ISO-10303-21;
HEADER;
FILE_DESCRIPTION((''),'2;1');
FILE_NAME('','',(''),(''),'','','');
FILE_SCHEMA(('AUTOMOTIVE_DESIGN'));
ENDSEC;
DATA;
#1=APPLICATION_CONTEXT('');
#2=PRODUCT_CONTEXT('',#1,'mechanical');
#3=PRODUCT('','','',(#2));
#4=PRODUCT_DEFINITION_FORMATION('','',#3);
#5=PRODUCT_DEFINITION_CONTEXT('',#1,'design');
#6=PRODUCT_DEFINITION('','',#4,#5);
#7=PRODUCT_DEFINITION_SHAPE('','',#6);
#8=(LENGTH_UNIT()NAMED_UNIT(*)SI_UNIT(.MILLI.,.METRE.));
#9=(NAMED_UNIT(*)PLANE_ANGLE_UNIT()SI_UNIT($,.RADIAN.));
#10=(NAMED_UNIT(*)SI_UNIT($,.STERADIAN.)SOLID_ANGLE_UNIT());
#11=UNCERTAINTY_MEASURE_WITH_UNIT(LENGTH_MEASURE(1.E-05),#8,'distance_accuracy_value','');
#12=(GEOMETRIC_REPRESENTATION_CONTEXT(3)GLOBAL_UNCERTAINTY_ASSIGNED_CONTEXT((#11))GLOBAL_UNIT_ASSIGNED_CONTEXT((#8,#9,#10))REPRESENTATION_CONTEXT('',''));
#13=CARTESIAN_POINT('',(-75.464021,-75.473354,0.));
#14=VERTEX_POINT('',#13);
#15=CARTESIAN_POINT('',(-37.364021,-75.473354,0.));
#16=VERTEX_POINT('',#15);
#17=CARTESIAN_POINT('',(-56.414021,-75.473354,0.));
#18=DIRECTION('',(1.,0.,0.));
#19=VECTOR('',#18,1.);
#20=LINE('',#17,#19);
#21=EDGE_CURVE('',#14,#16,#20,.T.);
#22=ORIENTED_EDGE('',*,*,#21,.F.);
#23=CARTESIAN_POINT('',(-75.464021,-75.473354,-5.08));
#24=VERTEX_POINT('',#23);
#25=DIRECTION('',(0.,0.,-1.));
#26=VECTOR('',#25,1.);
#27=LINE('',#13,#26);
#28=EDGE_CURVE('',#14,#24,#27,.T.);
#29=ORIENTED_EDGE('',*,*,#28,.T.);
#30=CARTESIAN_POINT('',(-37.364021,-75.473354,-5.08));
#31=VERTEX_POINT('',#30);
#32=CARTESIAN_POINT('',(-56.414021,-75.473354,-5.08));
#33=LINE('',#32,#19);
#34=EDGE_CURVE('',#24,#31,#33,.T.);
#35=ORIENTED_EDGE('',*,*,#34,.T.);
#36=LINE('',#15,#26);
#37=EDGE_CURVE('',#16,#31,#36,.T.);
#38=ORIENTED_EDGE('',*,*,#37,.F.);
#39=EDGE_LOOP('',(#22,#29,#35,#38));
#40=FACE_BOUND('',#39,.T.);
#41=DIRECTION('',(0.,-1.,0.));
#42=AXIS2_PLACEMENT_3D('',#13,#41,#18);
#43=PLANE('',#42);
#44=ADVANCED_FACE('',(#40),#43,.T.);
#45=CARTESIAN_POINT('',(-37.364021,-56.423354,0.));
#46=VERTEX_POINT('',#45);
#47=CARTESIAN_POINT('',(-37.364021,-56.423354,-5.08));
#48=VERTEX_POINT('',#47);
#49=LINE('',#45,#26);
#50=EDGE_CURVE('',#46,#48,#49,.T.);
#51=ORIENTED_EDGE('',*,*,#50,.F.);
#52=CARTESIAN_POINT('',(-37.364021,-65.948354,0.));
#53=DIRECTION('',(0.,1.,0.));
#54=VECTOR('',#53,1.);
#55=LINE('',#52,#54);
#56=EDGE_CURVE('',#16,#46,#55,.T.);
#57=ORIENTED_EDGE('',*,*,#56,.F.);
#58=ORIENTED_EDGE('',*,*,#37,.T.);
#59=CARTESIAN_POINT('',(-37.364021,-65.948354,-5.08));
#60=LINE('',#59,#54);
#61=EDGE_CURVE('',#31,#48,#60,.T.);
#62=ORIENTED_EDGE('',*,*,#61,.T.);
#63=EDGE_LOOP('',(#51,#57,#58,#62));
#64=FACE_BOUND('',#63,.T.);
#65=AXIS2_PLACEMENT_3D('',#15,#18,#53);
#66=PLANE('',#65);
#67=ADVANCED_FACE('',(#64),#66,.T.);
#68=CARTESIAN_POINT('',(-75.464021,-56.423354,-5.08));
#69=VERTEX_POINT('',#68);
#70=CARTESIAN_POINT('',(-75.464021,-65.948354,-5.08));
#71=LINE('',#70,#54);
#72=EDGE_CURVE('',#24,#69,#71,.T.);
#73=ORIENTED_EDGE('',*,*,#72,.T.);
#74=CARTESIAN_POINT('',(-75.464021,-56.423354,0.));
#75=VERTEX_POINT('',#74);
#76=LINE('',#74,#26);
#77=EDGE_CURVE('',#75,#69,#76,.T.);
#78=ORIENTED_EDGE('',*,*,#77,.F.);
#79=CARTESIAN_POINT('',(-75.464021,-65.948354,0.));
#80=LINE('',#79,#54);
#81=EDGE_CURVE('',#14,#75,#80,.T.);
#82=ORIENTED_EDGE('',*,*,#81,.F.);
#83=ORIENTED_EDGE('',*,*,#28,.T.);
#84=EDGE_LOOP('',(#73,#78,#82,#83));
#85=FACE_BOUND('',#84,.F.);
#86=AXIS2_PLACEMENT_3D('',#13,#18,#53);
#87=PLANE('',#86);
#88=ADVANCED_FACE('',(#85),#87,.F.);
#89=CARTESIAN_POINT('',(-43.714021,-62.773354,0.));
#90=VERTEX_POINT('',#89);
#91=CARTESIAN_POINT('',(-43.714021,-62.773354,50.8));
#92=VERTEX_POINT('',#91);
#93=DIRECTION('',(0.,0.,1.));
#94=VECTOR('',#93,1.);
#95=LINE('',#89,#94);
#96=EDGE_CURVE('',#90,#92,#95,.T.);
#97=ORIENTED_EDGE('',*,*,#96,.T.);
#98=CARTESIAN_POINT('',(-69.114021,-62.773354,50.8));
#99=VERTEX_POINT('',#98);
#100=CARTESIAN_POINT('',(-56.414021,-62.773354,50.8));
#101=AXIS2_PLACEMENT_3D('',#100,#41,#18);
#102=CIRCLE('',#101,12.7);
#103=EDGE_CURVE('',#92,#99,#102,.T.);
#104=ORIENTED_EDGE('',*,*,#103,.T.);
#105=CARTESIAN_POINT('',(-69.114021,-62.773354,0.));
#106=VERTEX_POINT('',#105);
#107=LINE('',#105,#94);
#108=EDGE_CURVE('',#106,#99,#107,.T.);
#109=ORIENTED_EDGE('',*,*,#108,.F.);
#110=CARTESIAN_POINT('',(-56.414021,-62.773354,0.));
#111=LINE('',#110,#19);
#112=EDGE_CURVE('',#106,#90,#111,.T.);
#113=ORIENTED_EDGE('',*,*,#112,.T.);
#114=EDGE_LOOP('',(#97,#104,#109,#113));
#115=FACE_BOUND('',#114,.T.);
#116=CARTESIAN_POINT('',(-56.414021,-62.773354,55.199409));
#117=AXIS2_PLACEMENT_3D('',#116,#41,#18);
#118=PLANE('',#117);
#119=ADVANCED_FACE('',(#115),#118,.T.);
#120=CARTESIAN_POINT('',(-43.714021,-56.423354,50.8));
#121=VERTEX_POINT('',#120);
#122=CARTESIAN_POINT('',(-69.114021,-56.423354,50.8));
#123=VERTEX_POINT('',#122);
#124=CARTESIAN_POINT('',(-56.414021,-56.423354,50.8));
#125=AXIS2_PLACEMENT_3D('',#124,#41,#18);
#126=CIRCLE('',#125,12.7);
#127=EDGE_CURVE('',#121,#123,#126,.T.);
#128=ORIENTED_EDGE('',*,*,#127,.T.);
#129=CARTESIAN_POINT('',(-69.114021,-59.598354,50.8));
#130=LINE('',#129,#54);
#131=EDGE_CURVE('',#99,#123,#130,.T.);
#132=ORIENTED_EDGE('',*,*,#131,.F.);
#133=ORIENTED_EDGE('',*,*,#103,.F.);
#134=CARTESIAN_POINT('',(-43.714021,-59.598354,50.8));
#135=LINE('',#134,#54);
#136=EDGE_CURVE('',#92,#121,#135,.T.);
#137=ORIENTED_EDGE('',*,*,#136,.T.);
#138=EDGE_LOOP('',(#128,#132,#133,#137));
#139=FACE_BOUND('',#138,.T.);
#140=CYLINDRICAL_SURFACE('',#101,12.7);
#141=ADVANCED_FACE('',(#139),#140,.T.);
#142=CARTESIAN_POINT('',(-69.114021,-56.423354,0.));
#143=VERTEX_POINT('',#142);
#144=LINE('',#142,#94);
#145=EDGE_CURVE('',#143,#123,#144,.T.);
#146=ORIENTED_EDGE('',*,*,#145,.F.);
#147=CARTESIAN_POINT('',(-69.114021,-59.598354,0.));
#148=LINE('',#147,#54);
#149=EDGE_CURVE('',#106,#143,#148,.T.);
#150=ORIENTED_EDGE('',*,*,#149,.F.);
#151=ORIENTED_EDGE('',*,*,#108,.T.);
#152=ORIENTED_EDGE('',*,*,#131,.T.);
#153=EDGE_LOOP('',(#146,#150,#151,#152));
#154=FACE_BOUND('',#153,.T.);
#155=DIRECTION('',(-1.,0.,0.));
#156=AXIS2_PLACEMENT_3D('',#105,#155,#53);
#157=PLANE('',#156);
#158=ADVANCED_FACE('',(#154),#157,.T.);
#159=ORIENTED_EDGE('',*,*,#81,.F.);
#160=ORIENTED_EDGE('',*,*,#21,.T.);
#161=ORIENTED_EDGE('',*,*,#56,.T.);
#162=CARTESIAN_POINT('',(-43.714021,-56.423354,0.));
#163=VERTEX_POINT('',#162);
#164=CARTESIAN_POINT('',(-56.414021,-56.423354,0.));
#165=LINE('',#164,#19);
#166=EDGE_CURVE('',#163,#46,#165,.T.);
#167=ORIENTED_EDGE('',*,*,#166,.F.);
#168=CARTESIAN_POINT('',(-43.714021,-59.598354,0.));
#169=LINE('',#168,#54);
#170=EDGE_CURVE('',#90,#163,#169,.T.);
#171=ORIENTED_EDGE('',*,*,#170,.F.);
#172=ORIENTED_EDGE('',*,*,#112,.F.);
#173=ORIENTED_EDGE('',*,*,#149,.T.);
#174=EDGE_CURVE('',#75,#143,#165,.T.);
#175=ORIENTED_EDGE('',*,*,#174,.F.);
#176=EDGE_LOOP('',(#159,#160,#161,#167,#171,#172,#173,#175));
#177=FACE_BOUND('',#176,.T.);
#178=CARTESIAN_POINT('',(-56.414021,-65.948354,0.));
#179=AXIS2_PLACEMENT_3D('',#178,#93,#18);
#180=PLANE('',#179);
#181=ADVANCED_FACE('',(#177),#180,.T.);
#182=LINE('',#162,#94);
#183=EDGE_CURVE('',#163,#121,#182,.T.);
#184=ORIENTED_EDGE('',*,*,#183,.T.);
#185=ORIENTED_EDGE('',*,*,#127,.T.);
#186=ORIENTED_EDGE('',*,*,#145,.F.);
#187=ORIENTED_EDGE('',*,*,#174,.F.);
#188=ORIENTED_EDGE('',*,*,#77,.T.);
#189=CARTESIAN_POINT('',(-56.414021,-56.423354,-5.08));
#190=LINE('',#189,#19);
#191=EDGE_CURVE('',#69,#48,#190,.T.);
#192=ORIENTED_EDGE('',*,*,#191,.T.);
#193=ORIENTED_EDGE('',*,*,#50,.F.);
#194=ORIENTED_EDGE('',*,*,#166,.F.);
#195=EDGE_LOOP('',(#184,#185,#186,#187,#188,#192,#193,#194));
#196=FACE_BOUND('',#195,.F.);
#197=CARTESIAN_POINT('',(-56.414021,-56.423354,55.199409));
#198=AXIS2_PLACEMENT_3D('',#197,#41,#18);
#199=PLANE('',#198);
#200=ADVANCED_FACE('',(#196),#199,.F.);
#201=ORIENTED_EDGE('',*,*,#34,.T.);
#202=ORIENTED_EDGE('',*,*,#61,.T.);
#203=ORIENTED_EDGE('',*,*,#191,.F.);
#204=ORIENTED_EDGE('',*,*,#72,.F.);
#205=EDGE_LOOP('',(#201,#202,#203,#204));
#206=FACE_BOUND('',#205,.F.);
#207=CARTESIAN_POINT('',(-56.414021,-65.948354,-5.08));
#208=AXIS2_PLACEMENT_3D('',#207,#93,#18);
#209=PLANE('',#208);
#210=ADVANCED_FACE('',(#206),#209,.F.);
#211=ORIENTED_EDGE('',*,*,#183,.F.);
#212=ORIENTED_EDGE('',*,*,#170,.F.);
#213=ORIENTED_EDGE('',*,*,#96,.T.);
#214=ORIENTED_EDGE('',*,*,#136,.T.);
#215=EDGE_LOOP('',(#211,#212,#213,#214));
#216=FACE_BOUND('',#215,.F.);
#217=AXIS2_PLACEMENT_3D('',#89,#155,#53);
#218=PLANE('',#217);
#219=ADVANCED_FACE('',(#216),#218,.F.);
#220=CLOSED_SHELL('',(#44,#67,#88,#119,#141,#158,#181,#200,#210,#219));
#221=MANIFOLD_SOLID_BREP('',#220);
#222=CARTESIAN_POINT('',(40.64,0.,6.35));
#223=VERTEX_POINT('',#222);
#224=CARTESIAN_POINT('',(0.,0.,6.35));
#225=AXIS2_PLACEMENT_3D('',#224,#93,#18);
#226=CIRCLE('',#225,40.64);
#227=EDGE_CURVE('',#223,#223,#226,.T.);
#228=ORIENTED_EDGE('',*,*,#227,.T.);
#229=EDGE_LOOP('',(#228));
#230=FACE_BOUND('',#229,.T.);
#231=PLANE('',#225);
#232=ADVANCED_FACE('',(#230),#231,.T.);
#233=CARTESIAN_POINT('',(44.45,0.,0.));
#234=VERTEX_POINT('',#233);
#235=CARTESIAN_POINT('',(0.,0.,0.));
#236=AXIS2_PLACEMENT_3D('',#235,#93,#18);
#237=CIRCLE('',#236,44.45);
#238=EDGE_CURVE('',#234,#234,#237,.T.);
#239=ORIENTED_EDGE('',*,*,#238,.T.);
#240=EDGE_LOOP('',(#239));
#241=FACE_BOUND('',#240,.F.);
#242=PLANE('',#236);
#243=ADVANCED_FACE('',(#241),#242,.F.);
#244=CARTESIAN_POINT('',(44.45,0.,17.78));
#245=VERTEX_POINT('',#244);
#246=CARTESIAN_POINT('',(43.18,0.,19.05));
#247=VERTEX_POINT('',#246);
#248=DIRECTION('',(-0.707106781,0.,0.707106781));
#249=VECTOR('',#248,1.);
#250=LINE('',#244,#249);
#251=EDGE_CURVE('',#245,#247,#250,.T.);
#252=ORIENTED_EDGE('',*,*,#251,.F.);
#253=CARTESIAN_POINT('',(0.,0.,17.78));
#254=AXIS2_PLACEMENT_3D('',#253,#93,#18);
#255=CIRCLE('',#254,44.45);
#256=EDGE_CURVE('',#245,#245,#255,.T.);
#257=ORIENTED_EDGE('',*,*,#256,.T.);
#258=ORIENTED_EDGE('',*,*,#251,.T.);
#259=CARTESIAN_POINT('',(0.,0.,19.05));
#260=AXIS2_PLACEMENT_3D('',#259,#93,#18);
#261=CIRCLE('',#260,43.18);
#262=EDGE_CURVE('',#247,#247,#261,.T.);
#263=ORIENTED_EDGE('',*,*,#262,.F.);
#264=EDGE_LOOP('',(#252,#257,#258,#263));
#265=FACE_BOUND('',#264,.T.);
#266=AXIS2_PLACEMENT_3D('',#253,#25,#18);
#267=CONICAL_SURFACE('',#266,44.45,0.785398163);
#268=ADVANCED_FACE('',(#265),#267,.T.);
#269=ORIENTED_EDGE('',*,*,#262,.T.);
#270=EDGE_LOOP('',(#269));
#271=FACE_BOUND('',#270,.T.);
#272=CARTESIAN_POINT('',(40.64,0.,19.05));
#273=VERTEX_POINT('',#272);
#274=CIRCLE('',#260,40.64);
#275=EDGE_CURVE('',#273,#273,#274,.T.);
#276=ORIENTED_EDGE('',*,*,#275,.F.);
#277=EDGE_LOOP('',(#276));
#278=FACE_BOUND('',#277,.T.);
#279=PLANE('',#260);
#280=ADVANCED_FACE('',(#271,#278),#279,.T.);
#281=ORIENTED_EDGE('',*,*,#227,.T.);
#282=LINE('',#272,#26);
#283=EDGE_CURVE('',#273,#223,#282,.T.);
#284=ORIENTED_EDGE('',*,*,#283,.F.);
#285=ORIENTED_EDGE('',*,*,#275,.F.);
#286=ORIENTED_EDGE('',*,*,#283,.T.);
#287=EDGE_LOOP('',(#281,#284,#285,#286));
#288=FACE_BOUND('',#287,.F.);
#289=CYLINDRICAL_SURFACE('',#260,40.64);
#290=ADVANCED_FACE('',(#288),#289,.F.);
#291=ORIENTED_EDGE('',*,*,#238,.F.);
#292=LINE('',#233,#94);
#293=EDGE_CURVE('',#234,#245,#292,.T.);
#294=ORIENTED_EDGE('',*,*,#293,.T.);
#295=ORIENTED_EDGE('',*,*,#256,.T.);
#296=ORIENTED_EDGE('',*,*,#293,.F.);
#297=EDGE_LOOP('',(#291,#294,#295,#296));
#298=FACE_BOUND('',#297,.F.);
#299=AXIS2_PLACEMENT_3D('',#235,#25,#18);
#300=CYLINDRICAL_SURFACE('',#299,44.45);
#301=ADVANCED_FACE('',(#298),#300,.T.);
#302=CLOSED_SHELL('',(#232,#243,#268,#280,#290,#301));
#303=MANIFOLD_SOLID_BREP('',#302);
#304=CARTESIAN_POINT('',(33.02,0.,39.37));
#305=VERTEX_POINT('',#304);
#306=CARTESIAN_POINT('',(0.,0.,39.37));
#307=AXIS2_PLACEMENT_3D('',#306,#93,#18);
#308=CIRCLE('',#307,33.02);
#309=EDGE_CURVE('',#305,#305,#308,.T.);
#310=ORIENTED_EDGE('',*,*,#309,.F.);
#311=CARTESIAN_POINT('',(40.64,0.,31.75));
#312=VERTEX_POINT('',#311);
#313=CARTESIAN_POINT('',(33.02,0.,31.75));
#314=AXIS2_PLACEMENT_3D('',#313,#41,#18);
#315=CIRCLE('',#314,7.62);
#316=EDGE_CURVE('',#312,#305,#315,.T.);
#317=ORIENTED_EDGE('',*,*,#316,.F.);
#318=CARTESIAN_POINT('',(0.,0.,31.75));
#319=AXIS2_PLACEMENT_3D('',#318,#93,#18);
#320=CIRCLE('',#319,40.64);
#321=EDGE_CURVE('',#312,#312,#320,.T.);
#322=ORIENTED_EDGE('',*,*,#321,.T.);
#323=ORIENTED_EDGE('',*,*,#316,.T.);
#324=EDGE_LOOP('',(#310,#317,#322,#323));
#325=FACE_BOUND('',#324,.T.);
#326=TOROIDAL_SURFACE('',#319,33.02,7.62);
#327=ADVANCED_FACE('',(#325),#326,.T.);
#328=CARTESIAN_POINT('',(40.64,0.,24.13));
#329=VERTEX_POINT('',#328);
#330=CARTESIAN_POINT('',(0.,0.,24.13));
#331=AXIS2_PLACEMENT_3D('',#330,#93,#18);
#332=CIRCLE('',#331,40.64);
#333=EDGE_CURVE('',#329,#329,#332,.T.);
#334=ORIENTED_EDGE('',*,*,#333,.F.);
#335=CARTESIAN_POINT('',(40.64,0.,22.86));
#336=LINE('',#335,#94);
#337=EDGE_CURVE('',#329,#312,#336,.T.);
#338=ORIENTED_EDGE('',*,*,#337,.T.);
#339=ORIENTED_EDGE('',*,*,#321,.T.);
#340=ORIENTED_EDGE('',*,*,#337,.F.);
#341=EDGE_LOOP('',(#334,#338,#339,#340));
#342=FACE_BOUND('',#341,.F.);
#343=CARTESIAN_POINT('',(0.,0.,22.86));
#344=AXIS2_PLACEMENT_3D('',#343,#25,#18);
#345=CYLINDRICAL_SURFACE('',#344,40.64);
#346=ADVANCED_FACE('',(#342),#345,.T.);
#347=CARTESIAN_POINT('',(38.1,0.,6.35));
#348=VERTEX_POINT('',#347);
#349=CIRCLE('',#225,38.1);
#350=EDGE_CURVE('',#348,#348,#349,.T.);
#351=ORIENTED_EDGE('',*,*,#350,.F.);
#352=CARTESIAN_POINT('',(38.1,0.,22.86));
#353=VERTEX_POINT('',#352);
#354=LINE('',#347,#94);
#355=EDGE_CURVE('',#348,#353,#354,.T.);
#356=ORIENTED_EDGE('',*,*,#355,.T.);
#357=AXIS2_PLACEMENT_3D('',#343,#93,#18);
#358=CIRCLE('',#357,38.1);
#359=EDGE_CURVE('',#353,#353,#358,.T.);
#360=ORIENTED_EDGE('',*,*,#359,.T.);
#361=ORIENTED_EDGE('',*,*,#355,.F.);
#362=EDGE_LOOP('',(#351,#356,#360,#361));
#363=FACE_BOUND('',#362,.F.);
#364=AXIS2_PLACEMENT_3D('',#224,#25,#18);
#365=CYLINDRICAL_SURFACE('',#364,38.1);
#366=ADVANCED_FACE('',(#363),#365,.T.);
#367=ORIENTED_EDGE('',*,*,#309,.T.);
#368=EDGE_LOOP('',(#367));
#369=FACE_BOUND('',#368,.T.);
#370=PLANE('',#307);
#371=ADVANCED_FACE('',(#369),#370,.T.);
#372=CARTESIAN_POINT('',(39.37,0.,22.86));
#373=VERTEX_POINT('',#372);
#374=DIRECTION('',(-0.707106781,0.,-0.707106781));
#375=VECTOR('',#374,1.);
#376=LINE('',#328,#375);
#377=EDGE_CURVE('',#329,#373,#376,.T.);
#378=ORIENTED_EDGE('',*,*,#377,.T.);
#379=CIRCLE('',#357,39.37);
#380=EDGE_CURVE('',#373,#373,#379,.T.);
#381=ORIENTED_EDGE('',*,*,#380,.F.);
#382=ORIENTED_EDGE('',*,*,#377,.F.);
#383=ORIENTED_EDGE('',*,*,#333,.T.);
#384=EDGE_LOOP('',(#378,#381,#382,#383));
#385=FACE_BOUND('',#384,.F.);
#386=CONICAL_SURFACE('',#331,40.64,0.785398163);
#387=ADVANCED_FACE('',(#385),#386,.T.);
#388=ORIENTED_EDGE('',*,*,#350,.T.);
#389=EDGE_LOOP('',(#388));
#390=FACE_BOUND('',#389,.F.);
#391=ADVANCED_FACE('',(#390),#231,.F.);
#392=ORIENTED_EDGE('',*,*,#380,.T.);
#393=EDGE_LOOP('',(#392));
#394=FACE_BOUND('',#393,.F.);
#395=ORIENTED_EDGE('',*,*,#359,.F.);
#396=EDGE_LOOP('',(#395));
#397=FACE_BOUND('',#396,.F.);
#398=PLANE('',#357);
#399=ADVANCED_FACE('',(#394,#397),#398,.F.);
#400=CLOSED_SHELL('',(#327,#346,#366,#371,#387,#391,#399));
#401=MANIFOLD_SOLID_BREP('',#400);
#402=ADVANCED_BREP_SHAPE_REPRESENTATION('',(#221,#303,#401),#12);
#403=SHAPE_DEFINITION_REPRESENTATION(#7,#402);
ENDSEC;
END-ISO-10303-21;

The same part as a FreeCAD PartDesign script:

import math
import FreeCAD as App
import Part
import Sketcher
Q = App.Units.Quantity


def edges_at(feature, points):
    """Names of the edges that pass closest to the given points."""
    edges = feature.Shape.Edges
    near = lambda p: min(range(len(edges)), key=lambda i: edges[i].distToShape(Part.Vertex(*p))[0])
    return sorted({f"Edge{near(p) + 1}" for p in points})

doc = App.newDocument("Part")
body = doc.addObject("PartDesign::Body", "Body")

# Sketch on XY plane
sketch1 = body.newObject("Sketcher::SketchObject", "Sketch")
sketch1.AttachmentSupport = (doc.getObject("XY_Plane"), [""])
sketch1.MapMode = "FlatFace"
sketch1.addGeometry(Part.Circle(App.Vector(0, 0, 0), App.Vector(0, 0, 1), 44), False)
sketch1.addConstraint(Sketcher.Constraint("Coincident", 0, 3, -1, 1))
sketch1.addConstraint(Sketcher.Constraint("Diameter", 0, Q("3.5 in")))
pad1 = body.newObject("PartDesign::Pad", "Pad")
pad1.Profile = sketch1
pad1.Length = Q("0.75 in")

# Sketch on XY plane
sketch2 = body.newObject("Sketcher::SketchObject", "Sketch001")
sketch2.AttachmentSupport = (doc.getObject("XY_Plane"), [""])
sketch2.MapMode = "FlatFace"
sketch2.AttachmentOffset = App.Placement(App.Vector(0, 0, 0.75 * 25.4), App.Rotation())
sketch2.addGeometry(Part.Circle(App.Vector(0, 0, 0), App.Vector(0, 0, 1), 41), False)
sketch2.addConstraint(Sketcher.Constraint("Coincident", 0, 3, -1, 1))
sketch2.addConstraint(Sketcher.Constraint("Diameter", 0, Q("3.2 in")))
pocket1 = body.newObject("PartDesign::Pocket", "Pocket")
pocket1.Profile = sketch2
pocket1.Length = Q("0.5 in")
doc.recompute()

chamfer = body.newObject("PartDesign::Chamfer", "Chamfer")
chamfer.Base = (pocket1, edges_at(pocket1, [(-44.45, 0, 19.05)]))
chamfer.Size = Q("0.05 in")
body2 = doc.addObject("PartDesign::Body", "Body001")

# Sketch on XY plane
sketch3 = body2.newObject("Sketcher::SketchObject", "Sketch002")
sketch3.AttachmentSupport = (doc.getObject("XY_Plane001"), [""])
sketch3.MapMode = "FlatFace"
sketch3.AttachmentOffset = App.Placement(App.Vector(0, 0, 0.25 * 25.4), App.Rotation())
sketch3.addGeometry(Part.Circle(App.Vector(0, 0, 0), App.Vector(0, 0, 1), 38), False)
sketch3.addConstraint(Sketcher.Constraint("Coincident", 0, 3, -1, 1))
sketch3.addConstraint(Sketcher.Constraint("Diameter", 0, Q("3 in")))
pad2 = body2.newObject("PartDesign::Pad", "Pad001")
pad2.Profile = sketch3
pad2.Length = Q("0.65 in")

# Sketch on XY plane
sketch4 = body2.newObject("Sketcher::SketchObject", "Sketch003")
sketch4.AttachmentSupport = (doc.getObject("XY_Plane001"), [""])
sketch4.MapMode = "FlatFace"
sketch4.AttachmentOffset = App.Placement(App.Vector(0, 0, 0.9 * 25.4), App.Rotation())
sketch4.addGeometry(Part.Circle(App.Vector(0, 0, 0), App.Vector(0, 0, 1), 41), False)
sketch4.addConstraint(Sketcher.Constraint("Coincident", 0, 3, -1, 1))
sketch4.addConstraint(Sketcher.Constraint("Diameter", 0, Q("3.2 in")))
pad3 = body2.newObject("PartDesign::Pad", "Pad002")
pad3.Profile = sketch4
pad3.Length = Q("0.65 in")
doc.recompute()

fillet = body2.newObject("PartDesign::Fillet", "Fillet")
fillet.Base = (pad3, edges_at(pad3, [(-40.64, 0, 39.37)]))
fillet.Radius = Q("0.3 in")
doc.recompute()

chamfer2 = body2.newObject("PartDesign::Chamfer", "Chamfer001")
chamfer2.Base = (fillet, edges_at(fillet, [(-40.64, 0, 22.86)]))
chamfer2.Size = Q("0.05 in")
body3 = doc.addObject("PartDesign::Body", "Body002")

# Sketch on XY plane
sketch5 = body3.newObject("Sketcher::SketchObject", "Sketch004")
sketch5.AttachmentSupport = (doc.getObject("XY_Plane002"), [""])
sketch5.MapMode = "FlatFace"
sketch5.addGeometry(Part.LineSegment(App.Vector(-75, -56, 0), App.Vector(-75, -75, 0)), False)
sketch5.addGeometry(Part.LineSegment(App.Vector(-75, -75, 0), App.Vector(-37, -75, 0)), False)
sketch5.addGeometry(Part.LineSegment(App.Vector(-37, -75, 0), App.Vector(-37, -56, 0)), False)
sketch5.addGeometry(Part.LineSegment(App.Vector(-37, -56, 0), App.Vector(-75, -56, 0)), False)
sketch5.addConstraint(Sketcher.Constraint("Coincident", 0, 2, 1, 1))
sketch5.addConstraint(Sketcher.Constraint("Coincident", 1, 2, 2, 1))
sketch5.addConstraint(Sketcher.Constraint("Coincident", 2, 2, 3, 1))
sketch5.addConstraint(Sketcher.Constraint("Coincident", 3, 2, 0, 1))
sketch5.addConstraint(Sketcher.Constraint("Vertical", 0))
sketch5.addConstraint(Sketcher.Constraint("Horizontal", 1))
sketch5.addConstraint(Sketcher.Constraint("Vertical", 2))
sketch5.addConstraint(Sketcher.Constraint("Horizontal", 3))
sketch5.addConstraint(Sketcher.Constraint("DistanceX", 1, 1, 1, 2, Q("1.5 in")))
sketch5.addConstraint(Sketcher.Constraint("DistanceY", 0, 2, 0, 1, Q("0.75 in")))
sketch5.addConstraint(Sketcher.Constraint("DistanceX", 0, 2, -1, 1, Q("75.464021 mm")))
sketch5.addConstraint(Sketcher.Constraint("DistanceY", 0, 2, -1, 1, Q("75.473354 mm")))
pad4 = body3.newObject("PartDesign::Pad", "Pad003")
pad4.Profile = sketch5
pad4.Length = Q("0.2 in")
pad4.Reversed = True

# Sketch on XY plane
sketch6 = body3.newObject("Sketcher::SketchObject", "Sketch005")
sketch6.AttachmentSupport = (doc.getObject("XY_Plane002"), [""])
sketch6.MapMode = "FlatFace"
sketch6.addGeometry(Part.LineSegment(App.Vector(-69, -56, 0), App.Vector(-69, -63, 0)), False)
sketch6.addGeometry(Part.LineSegment(App.Vector(-69, -63, 0), App.Vector(-44, -63, 0)), False)
sketch6.addGeometry(Part.LineSegment(App.Vector(-44, -63, 0), App.Vector(-44, -56, 0)), False)
sketch6.addGeometry(Part.LineSegment(App.Vector(-44, -56, 0), App.Vector(-69, -56, 0)), False)
sketch6.addConstraint(Sketcher.Constraint("Coincident", 0, 2, 1, 1))
sketch6.addConstraint(Sketcher.Constraint("Coincident", 1, 2, 2, 1))
sketch6.addConstraint(Sketcher.Constraint("Coincident", 2, 2, 3, 1))
sketch6.addConstraint(Sketcher.Constraint("Coincident", 3, 2, 0, 1))
sketch6.addConstraint(Sketcher.Constraint("Vertical", 0))
sketch6.addConstraint(Sketcher.Constraint("Horizontal", 1))
sketch6.addConstraint(Sketcher.Constraint("Vertical", 2))
sketch6.addConstraint(Sketcher.Constraint("Horizontal", 3))
sketch6.addConstraint(Sketcher.Constraint("DistanceX", 1, 1, 1, 2, Q("1 in")))
sketch6.addConstraint(Sketcher.Constraint("DistanceY", 0, 2, 0, 1, Q("0.25 in")))
sketch6.addConstraint(Sketcher.Constraint("DistanceX", 0, 2, -1, 1, Q("69.114021 mm")))
sketch6.addConstraint(Sketcher.Constraint("DistanceY", 0, 2, -1, 1, Q("62.773354 mm")))
pad5 = body3.newObject("PartDesign::Pad", "Pad004")
pad5.Profile = sketch6
pad5.Length = Q("2 in")

# Sketch on XZ plane
sketch7 = body3.newObject("Sketcher::SketchObject", "Sketch006")
sketch7.AttachmentSupport = (doc.getObject("XZ_Plane002"), [""])
sketch7.MapMode = "FlatFace"
sketch7.AttachmentOffset = App.Placement(App.Vector(0, 0, 62.773354), App.Rotation())
sketch7.addGeometry(Part.LineSegment(App.Vector(-69, 51, 0), App.Vector(-44, 51, 0)), False)
sketch7.addGeometry(Part.ArcOfCircle(Part.Circle(App.Vector(-56, 51, 0), App.Vector(0, 0, 1), 13), math.radians(0), math.radians(180)), False)
sketch7.addConstraint(Sketcher.Constraint("Coincident", 0, 1, 1, 2))
sketch7.addConstraint(Sketcher.Constraint("Coincident", 1, 1, 0, 2))
sketch7.addConstraint(Sketcher.Constraint("Horizontal", 0))
sketch7.addConstraint(Sketcher.Constraint("Horizontal", 1, 3, 0, 1))
sketch7.addConstraint(Sketcher.Constraint("Radius", 1, Q("0.5 in")))
sketch7.addConstraint(Sketcher.Constraint("DistanceY", -1, 1, 1, 3, Q("2 in")))
sketch7.addConstraint(Sketcher.Constraint("DistanceX", 1, 3, -1, 1, Q("56.414021 mm")))
pad6 = body3.newObject("PartDesign::Pad", "Pad005")
pad6.Profile = sketch7
pad6.Length = Q("0.25 in")
pad6.Reversed = True

doc.recompute()
